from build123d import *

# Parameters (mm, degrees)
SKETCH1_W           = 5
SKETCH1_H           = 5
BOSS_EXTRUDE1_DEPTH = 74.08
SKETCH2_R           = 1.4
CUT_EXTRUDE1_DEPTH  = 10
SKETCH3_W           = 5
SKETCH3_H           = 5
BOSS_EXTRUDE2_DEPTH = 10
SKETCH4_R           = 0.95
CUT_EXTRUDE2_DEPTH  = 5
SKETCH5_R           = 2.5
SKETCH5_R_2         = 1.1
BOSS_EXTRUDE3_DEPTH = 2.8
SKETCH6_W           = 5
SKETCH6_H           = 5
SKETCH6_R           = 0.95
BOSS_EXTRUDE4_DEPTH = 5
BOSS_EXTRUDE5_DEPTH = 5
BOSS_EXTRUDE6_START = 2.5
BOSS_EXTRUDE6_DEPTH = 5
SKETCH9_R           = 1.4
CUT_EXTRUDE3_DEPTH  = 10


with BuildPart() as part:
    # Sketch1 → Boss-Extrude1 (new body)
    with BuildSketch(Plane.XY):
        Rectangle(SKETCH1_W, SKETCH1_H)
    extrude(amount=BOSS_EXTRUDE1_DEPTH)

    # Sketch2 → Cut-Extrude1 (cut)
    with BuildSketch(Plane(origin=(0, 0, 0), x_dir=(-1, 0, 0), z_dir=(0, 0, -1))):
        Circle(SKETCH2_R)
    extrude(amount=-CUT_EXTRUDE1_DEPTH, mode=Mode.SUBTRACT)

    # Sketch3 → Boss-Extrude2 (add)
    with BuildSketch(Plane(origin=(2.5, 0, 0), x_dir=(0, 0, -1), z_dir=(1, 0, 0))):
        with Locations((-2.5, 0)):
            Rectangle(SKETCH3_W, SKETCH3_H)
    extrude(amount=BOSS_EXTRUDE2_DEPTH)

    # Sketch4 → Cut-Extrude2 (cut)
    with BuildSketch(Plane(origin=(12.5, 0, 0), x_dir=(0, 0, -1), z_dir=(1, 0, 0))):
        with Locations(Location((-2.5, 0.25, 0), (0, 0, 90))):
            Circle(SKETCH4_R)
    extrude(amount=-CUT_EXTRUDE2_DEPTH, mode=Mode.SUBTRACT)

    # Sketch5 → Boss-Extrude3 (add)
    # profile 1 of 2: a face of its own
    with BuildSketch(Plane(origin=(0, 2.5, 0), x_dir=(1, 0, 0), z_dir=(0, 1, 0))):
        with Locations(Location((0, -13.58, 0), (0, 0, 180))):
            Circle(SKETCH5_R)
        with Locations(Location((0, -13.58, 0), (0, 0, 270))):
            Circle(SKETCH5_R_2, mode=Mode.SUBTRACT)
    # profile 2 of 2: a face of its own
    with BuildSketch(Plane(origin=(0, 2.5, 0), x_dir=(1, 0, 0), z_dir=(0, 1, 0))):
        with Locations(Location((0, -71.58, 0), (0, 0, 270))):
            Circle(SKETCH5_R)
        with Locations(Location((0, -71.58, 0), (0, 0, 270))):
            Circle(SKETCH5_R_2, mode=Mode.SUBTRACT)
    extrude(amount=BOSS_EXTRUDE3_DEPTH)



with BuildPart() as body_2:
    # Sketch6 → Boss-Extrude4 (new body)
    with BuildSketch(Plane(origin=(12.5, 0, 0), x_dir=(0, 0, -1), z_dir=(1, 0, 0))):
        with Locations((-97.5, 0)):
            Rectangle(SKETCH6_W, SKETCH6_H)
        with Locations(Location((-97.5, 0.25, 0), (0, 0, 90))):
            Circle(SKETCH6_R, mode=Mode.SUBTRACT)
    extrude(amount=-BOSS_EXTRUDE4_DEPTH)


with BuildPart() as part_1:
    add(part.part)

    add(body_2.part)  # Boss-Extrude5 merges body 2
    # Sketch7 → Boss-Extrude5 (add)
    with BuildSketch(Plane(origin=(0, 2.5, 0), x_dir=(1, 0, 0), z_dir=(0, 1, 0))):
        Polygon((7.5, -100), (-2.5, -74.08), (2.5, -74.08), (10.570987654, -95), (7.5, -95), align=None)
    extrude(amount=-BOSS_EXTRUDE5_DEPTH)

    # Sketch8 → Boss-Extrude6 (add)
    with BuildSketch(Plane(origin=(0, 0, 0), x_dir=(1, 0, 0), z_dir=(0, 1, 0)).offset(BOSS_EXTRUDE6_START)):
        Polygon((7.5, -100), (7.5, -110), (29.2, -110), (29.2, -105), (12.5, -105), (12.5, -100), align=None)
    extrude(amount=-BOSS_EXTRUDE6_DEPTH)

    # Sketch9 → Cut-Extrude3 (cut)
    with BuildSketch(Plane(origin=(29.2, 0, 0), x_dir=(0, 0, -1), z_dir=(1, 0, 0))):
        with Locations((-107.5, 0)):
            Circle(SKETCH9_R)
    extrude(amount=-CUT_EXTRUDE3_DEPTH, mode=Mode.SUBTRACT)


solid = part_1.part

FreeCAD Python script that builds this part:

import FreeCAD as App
import Part
import Sketcher
Q = App.Units.Quantity

doc = App.newDocument("Part")
params = doc.addObject("Spreadsheet::Sheet", "Params")
for row, (alias, value) in enumerate([
    ("sketch1_width", "5 mm"),
    ("pad1_length", "74.08 mm"),
    ("sketch2_diameter", "2.8 mm"),
    ("pocket1_length", "10 mm"),
    ("sketch3_width", "5 mm"),
    ("pad2_length", "10 mm"),
    ("sketch4_diameter", "1.9 mm"),
    ("pocket2_length", "5 mm"),
    ("sketch5_diameter", "5 mm"),
    ("sketch5_diameter2", "2.2 mm"),
    ("pad3_length", "2.8 mm"),
    ("sketch6_diameter", "1.9 mm"),
    ("sketch6_width", "5 mm"),
    ("pad4_length", "5 mm"),
    ("sketch7_width", "5 mm"),
    ("pad5_length", "5 mm"),
    ("sketch8_width", "5 mm"),
    ("sketch8_width2", "21.7 mm"),
    ("pad6_length", "5 mm"),
    ("sketch9_diameter", "2.8 mm"),
    ("pocket3_length", "10 mm"),
], start=1):
    params.set(f"A{row}", alias)
    params.set(f"B{row}", "=" + value)
    params.setAlias(f"B{row}", alias)

body = doc.addObject("PartDesign::Body", "Body")

# Sketch on XY plane
sketch1 = doc.addObject("Sketcher::SketchObject", "Sketch")
body.addObject(sketch1)
sketch1.AttachmentSupport = (doc.XY_Plane, [""])
sketch1.MapMode = "FlatFace"
sketch1.addGeometry([
    Part.LineSegment(App.Vector(-2, 2, 0), App.Vector(-2, -2, 0)),
    Part.LineSegment(App.Vector(-2, -2, 0), App.Vector(2, -2, 0)),
    Part.LineSegment(App.Vector(2, -2, 0), App.Vector(2, 2, 0)),
    Part.LineSegment(App.Vector(2, 2, 0), App.Vector(-2, 2, 0)),
], False)
sketch1.addConstraint([
    Sketcher.Constraint("Coincident", 0, 2, 1, 1),
    Sketcher.Constraint("Coincident", 1, 2, 2, 1),
    Sketcher.Constraint("Coincident", 2, 2, 3, 1),
    Sketcher.Constraint("Coincident", 3, 2, 0, 1),
    Sketcher.Constraint("Vertical", 0),
    Sketcher.Constraint("Horizontal", 1),
    Sketcher.Constraint("Vertical", 2),
    Sketcher.Constraint("Horizontal", 3),
    Sketcher.Constraint("Symmetric", 0, 2, 2, 2, -1, 1),
    Sketcher.Constraint("Equal", 3, 0),
    Sketcher.Constraint("DistanceX", 1, 1, 1, 2, Q("5 mm")),
])
sketch1.setExpression("Constraints[10]", "Params.sketch1_width")
pad1 = doc.addObject("PartDesign::Pad", "Pad")
body.addObject(pad1)
pad1.Profile = sketch1
pad1.setExpression("Length", "Params.pad1_length")

# Sketch on XY plane
sketch2 = doc.addObject("Sketcher::SketchObject", "Sketch001")
body.addObject(sketch2)
sketch2.AttachmentSupport = (doc.XY_Plane, [""])
sketch2.MapMode = "FlatFace"
sketch2.addGeometry(Part.Circle(App.Vector(0, 0, 0), App.Vector(0, 0, 1), 1.4), False)
sketch2.addConstraint([
    Sketcher.Constraint("Coincident", 0, 3, -1, 1),
    Sketcher.Constraint("Diameter", 0, Q("2.8 mm")),
])
sketch2.setExpression("Constraints[1]", "Params.sketch2_diameter")
pocket1 = doc.addObject("PartDesign::Pocket", "Pocket")
body.addObject(pocket1)
pocket1.Profile = sketch2
pocket1.setExpression("Length", "Params.pocket1_length")
pocket1.Reversed = True

# Sketch on YZ plane
sketch3 = doc.addObject("Sketcher::SketchObject", "Sketch002")
body.addObject(sketch3)
sketch3.AttachmentSupport = (doc.YZ_Plane, [""])
sketch3.MapMode = "FlatFace"
sketch3.AttachmentOffset = App.Placement(App.Vector(0, 0, 2.5), App.Rotation())
sketch3.addGeometry([
    Part.LineSegment(App.Vector(2, 5, 0), App.Vector(-2, 5, 0)),
    Part.LineSegment(App.Vector(-2, 5, 0), App.Vector(-2, 0, 0)),
    Part.LineSegment(App.Vector(-2, 0, 0), App.Vector(2, 0, 0)),
    Part.LineSegment(App.Vector(2, 0, 0), App.Vector(2, 5, 0)),
], False)
sketch3.addConstraint([
    Sketcher.Constraint("Coincident", 0, 2, 1, 1),
    Sketcher.Constraint("Coincident", 1, 2, 2, 1),
    Sketcher.Constraint("Coincident", 2, 2, 3, 1),
    Sketcher.Constraint("Coincident", 3, 2, 0, 1),
    Sketcher.Constraint("Horizontal", 0),
    Sketcher.Constraint("Vertical", 1),
    Sketcher.Constraint("Horizontal", 2),
    Sketcher.Constraint("Vertical", 3),
    Sketcher.Constraint("Symmetric", 1, 2, 2, 2, -1, 1),
    Sketcher.Constraint("Equal", 2, 1),
    Sketcher.Constraint("DistanceX", 0, 2, 0, 1, Q("5 mm")),
])
sketch3.setExpression("Constraints[10]", "Params.sketch3_width")
pad2 = doc.addObject("PartDesign::Pad", "Pad001")
body.addObject(pad2)
pad2.Profile = sketch3
pad2.setExpression("Length", "Params.pad2_length")

# Sketch on YZ plane
sketch4 = doc.addObject("Sketcher::SketchObject", "Sketch003")
body.addObject(sketch4)
sketch4.AttachmentSupport = (doc.YZ_Plane, [""])
sketch4.MapMode = "FlatFace"
sketch4.AttachmentOffset = App.Placement(App.Vector(0, 0, 12.5), App.Rotation())
sketch4.addGeometry(Part.Circle(App.Vector(0.2, 2.5, 0), App.Vector(0, 0, 1), 0.9), False)
sketch4.addConstraint([
    Sketcher.Constraint("Diameter", 0, Q("1.9 mm")),
    Sketcher.Constraint("DistanceY", -1, 1, 0, 3, Q("2.5 mm")),
    Sketcher.Constraint("DistanceX", -1, 1, 0, 3, Q("0.25 mm")),
])
sketch4.setExpression("Constraints[0]", "Params.sketch4_diameter")
pocket2 = doc.addObject("PartDesign::Pocket", "Pocket001")
body.addObject(pocket2)
pocket2.Profile = sketch4
pocket2.setExpression("Length", "Params.pocket2_length")

# Sketch on XZ plane
sketch5 = doc.addObject("Sketcher::SketchObject", "Sketch004")
body.addObject(sketch5)
sketch5.AttachmentSupport = (doc.XZ_Plane, [""])
sketch5.MapMode = "FlatFace"
sketch5.AttachmentOffset = App.Placement(App.Vector(0, 0, -2.5), App.Rotation())
sketch5.addGeometry([
    Part.Circle(App.Vector(0, 13.6, 0), App.Vector(0, 0, 1), 2.5),
    Part.Circle(App.Vector(0, 13.6, 0), App.Vector(0, 0, 1), 1.1),
    Part.Circle(App.Vector(0, 71.6, 0), App.Vector(0, 0, 1), 2.5),
    Part.Circle(App.Vector(0, 71.6, 0), App.Vector(0, 0, 1), 1.1),
], False)
sketch5.addConstraint([
    Sketcher.Constraint("Coincident", 1, 3, 0, 3),
    Sketcher.Constraint("Coincident", 3, 3, 2, 3),
    Sketcher.Constraint("Equal", 0, 2),
    Sketcher.Constraint("Equal", 1, 3),
    Sketcher.Constraint("PointOnObject", 0, 3, -2),
    Sketcher.Constraint("PointOnObject", 2, 3, -2),
    Sketcher.Constraint("Diameter", 0, Q("5 mm")),
    Sketcher.Constraint("Diameter", 1, Q("2.2 mm")),
    Sketcher.Constraint("DistanceY", 0, 3, 2, 3, Q("58 mm")),
    Sketcher.Constraint("DistanceY", -1, 1, 0, 3, Q("13.58 mm")),
])
sketch5.setExpression("Constraints[6]", "Params.sketch5_diameter")
sketch5.setExpression("Constraints[7]", "Params.sketch5_diameter2")
pad3 = doc.addObject("PartDesign::Pad", "Pad002")
body.addObject(pad3)
pad3.Profile = sketch5
pad3.setExpression("Length", "Params.pad3_length")
pad3.Reversed = True
body2 = doc.addObject("PartDesign::Body", "Body001")

# Sketch on YZ plane
sketch6 = doc.addObject("Sketcher::SketchObject", "Sketch005")
body2.addObject(sketch6)
sketch6.AttachmentSupport = (doc.getObject("YZ_Plane001"), [""])
sketch6.MapMode = "FlatFace"
sketch6.AttachmentOffset = App.Placement(App.Vector(0, 0, 12.5), App.Rotation())
sketch6.addGeometry([
    Part.LineSegment(App.Vector(2.5, 100, 0), App.Vector(-2.5, 100, 0)),  # 0
    Part.LineSegment(App.Vector(-2.5, 100, 0), App.Vector(-2.5, 95, 0)),  # 1
    Part.LineSegment(App.Vector(-2.5, 95, 0), App.Vector(2.5, 95, 0)),  # 2
    Part.LineSegment(App.Vector(2.5, 95, 0), App.Vector(2.5, 100, 0)),  # 3
    Part.Circle(App.Vector(0.2, 97.5, 0), App.Vector(0, 0, 1), 0.9),  # 4
], False)
sketch6.addConstraint([
    Sketcher.Constraint("Coincident", 0, 2, 1, 1),
    Sketcher.Constraint("Coincident", 1, 2, 2, 1),
    Sketcher.Constraint("Coincident", 2, 2, 3, 1),
    Sketcher.Constraint("Coincident", 3, 2, 0, 1),
    Sketcher.Constraint("Horizontal", 0),
    Sketcher.Constraint("Vertical", 1),
    Sketcher.Constraint("Horizontal", 2),
    Sketcher.Constraint("Vertical", 3),
    Sketcher.Constraint("Equal", 2, 1),
    Sketcher.Constraint("Diameter", 4, Q("1.9 mm")),
    Sketcher.Constraint("DistanceX", 0, 2, 0, 1, Q("5 mm")),
    Sketcher.Constraint("DistanceY", -1, 1, 0, 2, Q("100 mm")),
    Sketcher.Constraint("DistanceY", -1, 1, 4, 3, Q("97.5 mm")),
    Sketcher.Constraint("DistanceX", 0, 2, -1, 1, Q("2.5 mm")),
    Sketcher.Constraint("DistanceX", -1, 1, 4, 3, Q("0.25 mm")),
])
sketch6.setExpression("Constraints[9]", "Params.sketch6_diameter")
sketch6.setExpression("Constraints[10]", "Params.sketch6_width")
pad4 = doc.addObject("PartDesign::Pad", "Pad003")
body2.addObject(pad4)
pad4.Profile = sketch6
pad4.setExpression("Length", "Params.pad4_length")
pad4.Reversed = True
body.AllowCompound = True
doc.recompute()

boolean = doc.addObject("PartDesign::Boolean", "Boolean")
body.addObject(boolean)
boolean.Type = "Fuse"
boolean.addObjects([body2])

# Sketch on XZ plane
sketch7 = doc.addObject("Sketcher::SketchObject", "Sketch006")
body.addObject(sketch7)
sketch7.AttachmentSupport = (doc.XZ_Plane, [""])
sketch7.MapMode = "FlatFace"
sketch7.AttachmentOffset = App.Placement(App.Vector(0, 0, -2.5), App.Rotation())
sketch7.addGeometry([
    Part.LineSegment(App.Vector(-2.5, 74.1, 0), App.Vector(7.5, 100, 0)),  # 0
    Part.LineSegment(App.Vector(7.5, 100, 0), App.Vector(7.5, 95, 0)),  # 1
    Part.LineSegment(App.Vector(7.5, 95, 0), App.Vector(10.6, 95, 0)),  # 2
    Part.LineSegment(App.Vector(10.6, 95, 0), App.Vector(2.5, 74.1, 0)),  # 3
    Part.LineSegment(App.Vector(2.5, 74.1, 0), App.Vector(-2.5, 74.1, 0)),  # 4
], False)
sketch7.addConstraint([
    Sketcher.Constraint("Coincident", 0, 2, 1, 1),
    Sketcher.Constraint("Coincident", 1, 2, 2, 1),
    Sketcher.Constraint("Coincident", 2, 2, 3, 1),
    Sketcher.Constraint("Coincident", 3, 2, 4, 1),
    Sketcher.Constraint("Coincident", 4, 2, 0, 1),
    Sketcher.Constraint("Vertical", 1),
    Sketcher.Constraint("Horizontal", 2),
    Sketcher.Constraint("Horizontal", 4),
    Sketcher.Constraint("Parallel", 0, 3),
    Sketcher.Constraint("Equal", 4, 1),
    Sketcher.Constraint("DistanceX", 4, 2, 4, 1, Q("5 mm")),
    Sketcher.Constraint("DistanceY", -1, 1, 0, 2, Q("100 mm")),
    Sketcher.Constraint("DistanceX", 3, 2, 1, 2, Q("5 mm")),
    Sketcher.Constraint("DistanceX", -1, 1, 0, 2, Q("7.5 mm")),
    Sketcher.Constraint("DistanceY", -1, 1, 3, 2, Q("74.08 mm")),
])
sketch7.setExpression("Constraints[10]", "Params.sketch7_width")
pad5 = doc.addObject("PartDesign::Pad", "Pad004")
body.addObject(pad5)
pad5.Profile = sketch7
pad5.setExpression("Length", "Params.pad5_length")

# Sketch on XZ plane
sketch8 = doc.addObject("Sketcher::SketchObject", "Sketch007")
body.addObject(sketch8)
sketch8.AttachmentSupport = (doc.XZ_Plane, [""])
sketch8.MapMode = "FlatFace"
sketch8.AttachmentOffset = App.Placement(App.Vector(0, 0, -2.5), App.Rotation())
sketch8.addGeometry([
    Part.LineSegment(App.Vector(8, 100, 0), App.Vector(8, 110, 0)),  # 0
    Part.LineSegment(App.Vector(8, 110, 0), App.Vector(29, 110, 0)),  # 1
    Part.LineSegment(App.Vector(29, 110, 0), App.Vector(29, 105, 0)),  # 2
    Part.LineSegment(App.Vector(29, 105, 0), App.Vector(12, 105, 0)),  # 3
    Part.LineSegment(App.Vector(12, 105, 0), App.Vector(12, 100, 0)),  # 4
    Part.LineSegment(App.Vector(12, 100, 0), App.Vector(8, 100, 0)),  # 5
], False)
sketch8.addConstraint([
    Sketcher.Constraint("Coincident", 0, 2, 1, 1),
    Sketcher.Constraint("Coincident", 1, 2, 2, 1),
    Sketcher.Constraint("Coincident", 2, 2, 3, 1),
    Sketcher.Constraint("Coincident", 3, 2, 4, 1),
    Sketcher.Constraint("Coincident", 4, 2, 5, 1),
    Sketcher.Constraint("Coincident", 5, 2, 0, 1),
    Sketcher.Constraint("Vertical", 0),
    Sketcher.Constraint("Horizontal", 1),
    Sketcher.Constraint("Vertical", 2),
    Sketcher.Constraint("Horizontal", 3),
    Sketcher.Constraint("Vertical", 4),
    Sketcher.Constraint("Horizontal", 5),
    Sketcher.Constraint("Equal", 5, 2),
    Sketcher.Constraint("Equal", 2, 4),
    Sketcher.Constraint("DistanceX", 5, 2, 5, 1, Q("5 mm")),
    Sketcher.Constraint("DistanceX", 1, 1, 1, 2, Q("21.7 mm")),
    Sketcher.Constraint("DistanceY", -1, 1, 0, 2, Q("110 mm")),
    Sketcher.Constraint("DistanceX", -1, 1, 0, 2, Q("7.5 mm")),
])
sketch8.setExpression("Constraints[14]", "Params.sketch8_width")
sketch8.setExpression("Constraints[15]", "Params.sketch8_width2")
pad6 = doc.addObject("PartDesign::Pad", "Pad005")
body.addObject(pad6)
pad6.Profile = sketch8
pad6.setExpression("Length", "Params.pad6_length")

# Sketch on YZ plane
sketch9 = doc.addObject("Sketcher::SketchObject", "Sketch008")
body.addObject(sketch9)
sketch9.AttachmentSupport = (doc.YZ_Plane, [""])
sketch9.MapMode = "FlatFace"
sketch9.AttachmentOffset = App.Placement(App.Vector(0, 0, 29.2), App.Rotation())
sketch9.addGeometry(Part.Circle(App.Vector(0, 107.5, 0), App.Vector(0, 0, 1), 1.4), False)
sketch9.addConstraint([
    Sketcher.Constraint("PointOnObject", 0, 3, -2),
    Sketcher.Constraint("Diameter", 0, Q("2.8 mm")),
    Sketcher.Constraint("DistanceY", -1, 1, 0, 3, Q("107.5 mm")),
])
sketch9.setExpression("Constraints[1]", "Params.sketch9_diameter")
pocket3 = doc.addObject("PartDesign::Pocket", "Pocket002")
body.addObject(pocket3)
pocket3.Profile = sketch9
pocket3.setExpression("Length", "Params.pocket3_length")

doc.recompute()
